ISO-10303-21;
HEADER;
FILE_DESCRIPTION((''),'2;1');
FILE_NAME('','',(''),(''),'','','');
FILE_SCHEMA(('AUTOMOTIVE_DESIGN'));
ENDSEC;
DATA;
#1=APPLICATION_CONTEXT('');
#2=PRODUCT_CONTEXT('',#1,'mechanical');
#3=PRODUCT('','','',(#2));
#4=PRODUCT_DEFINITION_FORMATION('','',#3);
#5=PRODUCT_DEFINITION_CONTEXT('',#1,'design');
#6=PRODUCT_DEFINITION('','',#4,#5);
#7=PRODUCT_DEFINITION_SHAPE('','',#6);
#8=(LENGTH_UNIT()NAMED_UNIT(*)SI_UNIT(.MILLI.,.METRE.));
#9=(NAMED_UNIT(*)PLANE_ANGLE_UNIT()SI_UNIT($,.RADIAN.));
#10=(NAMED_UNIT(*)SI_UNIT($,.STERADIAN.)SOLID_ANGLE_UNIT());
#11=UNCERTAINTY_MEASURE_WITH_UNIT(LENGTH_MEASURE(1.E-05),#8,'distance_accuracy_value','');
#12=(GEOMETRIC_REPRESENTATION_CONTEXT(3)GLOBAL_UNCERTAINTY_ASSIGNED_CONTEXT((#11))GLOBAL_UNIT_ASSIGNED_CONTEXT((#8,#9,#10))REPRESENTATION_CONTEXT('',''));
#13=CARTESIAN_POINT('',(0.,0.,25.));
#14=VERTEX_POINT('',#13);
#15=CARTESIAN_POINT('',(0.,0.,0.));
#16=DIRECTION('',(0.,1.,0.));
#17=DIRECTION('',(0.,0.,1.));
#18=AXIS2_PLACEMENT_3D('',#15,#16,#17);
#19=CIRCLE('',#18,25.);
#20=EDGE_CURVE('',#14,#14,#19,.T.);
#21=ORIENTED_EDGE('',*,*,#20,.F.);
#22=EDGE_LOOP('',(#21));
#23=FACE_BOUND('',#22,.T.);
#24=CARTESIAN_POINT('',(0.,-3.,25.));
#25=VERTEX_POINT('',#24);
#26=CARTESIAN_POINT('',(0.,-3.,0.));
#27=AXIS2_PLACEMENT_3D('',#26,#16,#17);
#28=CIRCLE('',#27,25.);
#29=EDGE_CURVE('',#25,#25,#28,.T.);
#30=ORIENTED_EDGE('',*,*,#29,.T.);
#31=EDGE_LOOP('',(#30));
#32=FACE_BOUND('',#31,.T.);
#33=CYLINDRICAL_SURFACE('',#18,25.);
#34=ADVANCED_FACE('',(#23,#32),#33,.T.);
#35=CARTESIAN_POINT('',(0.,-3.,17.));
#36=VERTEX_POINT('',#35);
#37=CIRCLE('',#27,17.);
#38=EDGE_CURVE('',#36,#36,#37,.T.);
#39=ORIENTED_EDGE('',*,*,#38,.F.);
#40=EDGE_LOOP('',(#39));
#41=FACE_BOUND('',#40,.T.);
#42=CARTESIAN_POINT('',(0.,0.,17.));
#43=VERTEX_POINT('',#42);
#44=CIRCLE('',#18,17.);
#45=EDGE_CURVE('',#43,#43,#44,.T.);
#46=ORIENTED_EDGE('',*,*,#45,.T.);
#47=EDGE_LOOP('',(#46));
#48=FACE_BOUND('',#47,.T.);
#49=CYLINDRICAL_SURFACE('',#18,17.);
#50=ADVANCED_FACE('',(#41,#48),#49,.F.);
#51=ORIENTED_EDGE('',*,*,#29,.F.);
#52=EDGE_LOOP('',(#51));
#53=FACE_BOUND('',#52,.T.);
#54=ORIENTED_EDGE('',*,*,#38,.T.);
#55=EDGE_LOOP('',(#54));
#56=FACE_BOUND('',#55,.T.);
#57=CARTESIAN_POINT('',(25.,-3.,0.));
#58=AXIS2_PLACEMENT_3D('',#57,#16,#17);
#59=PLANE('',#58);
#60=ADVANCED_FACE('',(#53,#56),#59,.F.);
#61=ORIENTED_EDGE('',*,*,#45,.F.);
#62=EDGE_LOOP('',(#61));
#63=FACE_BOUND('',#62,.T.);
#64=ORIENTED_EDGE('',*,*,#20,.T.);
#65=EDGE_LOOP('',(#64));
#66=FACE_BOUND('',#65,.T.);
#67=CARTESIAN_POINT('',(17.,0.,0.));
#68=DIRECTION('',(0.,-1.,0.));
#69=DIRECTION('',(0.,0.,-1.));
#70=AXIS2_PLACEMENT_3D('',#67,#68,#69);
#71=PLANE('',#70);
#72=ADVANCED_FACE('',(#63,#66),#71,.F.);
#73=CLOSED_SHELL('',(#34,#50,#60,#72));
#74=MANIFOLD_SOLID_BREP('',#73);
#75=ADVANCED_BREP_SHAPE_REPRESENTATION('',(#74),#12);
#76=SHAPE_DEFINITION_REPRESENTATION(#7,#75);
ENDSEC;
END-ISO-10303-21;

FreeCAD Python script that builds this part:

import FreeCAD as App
import Part
import Sketcher
Q = App.Units.Quantity

doc = App.newDocument("Part")
params = doc.addObject("Spreadsheet::Sheet", "Params")
for row, (alias, value) in enumerate([
    ("sketch1_width", "8 mm"),
    ("sketch1_height", "3 mm"),
    ("revolution_angle", "360 deg"),
], start=1):
    params.set(f"A{row}", alias)
    params.set(f"B{row}", "=" + value)
    params.setAlias(f"B{row}", alias)

body = doc.addObject("PartDesign::Body", "Body")

# Sketch on XY plane
sketch1 = doc.addObject("Sketcher::SketchObject", "Sketch")
body.addObject(sketch1)
sketch1.AttachmentSupport = (doc.XY_Plane, [""])
sketch1.MapMode = "FlatFace"
sketch1.addGeometry(Part.LineSegment(App.Vector(17, 0, 0), App.Vector(17, -3, 0)), False)
sketch1.addGeometry(Part.LineSegment(App.Vector(17, -3, 0), App.Vector(25, -3, 0)), False)
sketch1.addGeometry(Part.LineSegment(App.Vector(25, -3, 0), App.Vector(25, 0, 0)), False)
sketch1.addGeometry(Part.LineSegment(App.Vector(25, 0, 0), App.Vector(17, 0, 0)), False)
sketch1.addConstraint(Sketcher.Constraint("Coincident", 0, 2, 1, 1))
sketch1.addConstraint(Sketcher.Constraint("Coincident", 1, 2, 2, 1))
sketch1.addConstraint(Sketcher.Constraint("Coincident", 2, 2, 3, 1))
sketch1.addConstraint(Sketcher.Constraint("Coincident", 3, 2, 0, 1))
sketch1.addConstraint(Sketcher.Constraint("Vertical", 0))
sketch1.addConstraint(Sketcher.Constraint("Horizontal", 1))
sketch1.addConstraint(Sketcher.Constraint("Vertical", 2))
sketch1.addConstraint(Sketcher.Constraint("Horizontal", 3))
sketch1.addConstraint(Sketcher.Constraint("PointOnObject", 2, 2, -1))
sketch1.addConstraint(Sketcher.Constraint("DistanceX", 1, 1, 1, 2, Q("8 mm")))
sketch1.addConstraint(Sketcher.Constraint("DistanceY", 0, 2, 0, 1, Q("3 mm")))
sketch1.addConstraint(Sketcher.Constraint("DistanceX", -1, 1, 0, 2, Q("17 mm")))
sketch1.setExpression("Constraints[9]", "Params.sketch1_width")
sketch1.setExpression("Constraints[10]", "Params.sketch1_height")
revolution = doc.addObject("PartDesign::Revolution", "Revolution")
body.addObject(revolution)
revolution.Profile = sketch1
revolution.ReferenceAxis = (sketch1, ["V_Axis"])
revolution.setExpression("Angle", "Params.revolution_angle")

doc.recompute()
